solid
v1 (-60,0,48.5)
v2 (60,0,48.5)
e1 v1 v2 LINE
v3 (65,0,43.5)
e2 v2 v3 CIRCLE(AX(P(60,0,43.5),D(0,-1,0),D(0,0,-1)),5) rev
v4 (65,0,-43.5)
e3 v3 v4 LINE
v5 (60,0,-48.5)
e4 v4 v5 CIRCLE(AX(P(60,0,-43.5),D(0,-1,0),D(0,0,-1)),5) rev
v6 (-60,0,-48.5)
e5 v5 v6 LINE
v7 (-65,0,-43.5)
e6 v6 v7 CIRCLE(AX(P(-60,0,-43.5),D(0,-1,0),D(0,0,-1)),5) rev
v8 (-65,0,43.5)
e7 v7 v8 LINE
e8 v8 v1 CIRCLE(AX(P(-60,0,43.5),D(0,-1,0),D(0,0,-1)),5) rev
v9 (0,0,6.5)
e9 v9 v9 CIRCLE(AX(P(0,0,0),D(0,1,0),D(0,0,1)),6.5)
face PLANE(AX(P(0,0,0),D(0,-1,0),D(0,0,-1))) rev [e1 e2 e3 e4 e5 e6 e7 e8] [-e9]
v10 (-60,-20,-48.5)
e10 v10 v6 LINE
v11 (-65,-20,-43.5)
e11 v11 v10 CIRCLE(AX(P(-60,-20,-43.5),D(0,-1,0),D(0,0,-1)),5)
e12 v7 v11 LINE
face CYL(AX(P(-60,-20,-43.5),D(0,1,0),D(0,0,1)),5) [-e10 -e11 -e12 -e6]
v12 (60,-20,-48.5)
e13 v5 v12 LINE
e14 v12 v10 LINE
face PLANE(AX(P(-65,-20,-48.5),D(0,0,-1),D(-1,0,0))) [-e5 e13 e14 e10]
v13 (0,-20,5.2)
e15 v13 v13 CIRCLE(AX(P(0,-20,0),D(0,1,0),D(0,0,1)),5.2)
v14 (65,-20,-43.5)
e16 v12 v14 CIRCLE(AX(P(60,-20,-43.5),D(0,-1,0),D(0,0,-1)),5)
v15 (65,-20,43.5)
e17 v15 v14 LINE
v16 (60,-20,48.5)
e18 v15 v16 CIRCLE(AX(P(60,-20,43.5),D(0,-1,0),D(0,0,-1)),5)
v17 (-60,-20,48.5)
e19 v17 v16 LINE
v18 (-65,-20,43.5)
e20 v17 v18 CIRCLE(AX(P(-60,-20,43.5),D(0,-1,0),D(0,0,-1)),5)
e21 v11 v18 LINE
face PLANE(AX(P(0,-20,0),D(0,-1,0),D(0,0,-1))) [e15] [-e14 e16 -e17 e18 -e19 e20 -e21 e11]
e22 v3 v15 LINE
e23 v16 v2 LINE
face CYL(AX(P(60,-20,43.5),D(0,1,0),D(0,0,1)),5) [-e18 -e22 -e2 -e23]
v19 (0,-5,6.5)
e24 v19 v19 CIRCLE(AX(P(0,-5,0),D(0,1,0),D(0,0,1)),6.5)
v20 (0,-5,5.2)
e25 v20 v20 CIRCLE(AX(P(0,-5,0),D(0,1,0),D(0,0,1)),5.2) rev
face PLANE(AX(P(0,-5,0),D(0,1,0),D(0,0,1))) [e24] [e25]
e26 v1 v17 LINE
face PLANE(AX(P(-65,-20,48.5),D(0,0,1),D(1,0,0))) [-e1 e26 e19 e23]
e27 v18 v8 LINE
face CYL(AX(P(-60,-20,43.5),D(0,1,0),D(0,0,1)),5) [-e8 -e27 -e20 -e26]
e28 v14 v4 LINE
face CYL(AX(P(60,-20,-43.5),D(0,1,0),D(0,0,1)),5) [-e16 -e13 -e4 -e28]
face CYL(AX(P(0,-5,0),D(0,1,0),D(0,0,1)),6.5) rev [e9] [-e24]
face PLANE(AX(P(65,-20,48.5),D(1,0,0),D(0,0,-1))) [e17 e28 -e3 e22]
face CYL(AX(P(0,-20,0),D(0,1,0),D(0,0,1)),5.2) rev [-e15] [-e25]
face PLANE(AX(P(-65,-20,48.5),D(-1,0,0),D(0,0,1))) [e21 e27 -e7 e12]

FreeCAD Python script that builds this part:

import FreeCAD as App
import Part
import Sketcher
from FreeCAD import Vector


def edges_at(feature, points):
    """Names of the edges that pass closest to the given points."""
    edges = feature.Shape.Edges
    near = lambda p: min(range(len(edges)), key=lambda i: edges[i].distToShape(Part.Vertex(*p))[0])
    return sorted({f"Edge{near(p) + 1}" for p in points})

doc = App.newDocument("Part")
body = doc.addObject("PartDesign::Body", "Body")

# Sketch on XZ plane
sketch1 = body.newObject("Sketcher::SketchObject", "Sketch")
sketch1.AttachmentSupport = (doc.getObject("XZ_Plane"), [""])
sketch1.MapMode = "FlatFace"
sketch1.addGeometry(Part.LineSegment(Vector(-65, -48.5, 0), Vector(-65, 48.5, 0)), False)
sketch1.addGeometry(Part.LineSegment(Vector(-65, 48.5, 0), Vector(65, 48.5, 0)), False)
sketch1.addGeometry(Part.LineSegment(Vector(65, 48.5, 0), Vector(65, -48.5, 0)), False)
sketch1.addGeometry(Part.LineSegment(Vector(65, -48.5, 0), Vector(-65, -48.5, 0)), False)
sketch1.addConstraint(Sketcher.Constraint("Coincident", 0, 2, 1, 1))
sketch1.addConstraint(Sketcher.Constraint("Coincident", 1, 2, 2, 1))
sketch1.addConstraint(Sketcher.Constraint("Coincident", 2, 2, 3, 1))
sketch1.addConstraint(Sketcher.Constraint("Coincident", 3, 2, 0, 1))
sketch1.addConstraint(Sketcher.Constraint("Vertical", 0))
sketch1.addConstraint(Sketcher.Constraint("Horizontal", 1))
sketch1.addConstraint(Sketcher.Constraint("Vertical", 2))
sketch1.addConstraint(Sketcher.Constraint("Horizontal", 3))
sketch1.addConstraint(Sketcher.Constraint("Symmetric", 0, 2, 2, 2, -1, 1))
sketch1.addConstraint(Sketcher.Constraint("DistanceX", 1, 1, 1, 2, 130.0))
sketch1.addConstraint(Sketcher.Constraint("DistanceY", 0, 1, 0, 2, 97.0))
pad1 = body.newObject("PartDesign::Pad", "Pad")
pad1.Profile = sketch1
pad1.Length = 20

# Sketch on XZ plane
sketch2 = body.newObject("Sketcher::SketchObject", "Sketch001")
sketch2.AttachmentSupport = (doc.getObject("XZ_Plane"), [""])
sketch2.MapMode = "FlatFace"
sketch2.addGeometry(Part.Circle(Vector(0, 0, 0), Vector(0, 0, 1), 5.2), False)
sketch2.addConstraint(Sketcher.Constraint("Coincident", 0, 3, -1, 1))
sketch2.addConstraint(Sketcher.Constraint("Diameter", 0, 10.4))
pocket1 = body.newObject("PartDesign::Pocket", "Pocket")
pocket1.Profile = sketch2
pocket1.Type = "ThroughAll"
pocket1.Reversed = True

# Sketch on XZ plane
sketch3 = body.newObject("Sketcher::SketchObject", "Sketch002")
sketch3.AttachmentSupport = (doc.getObject("XZ_Plane"), [""])
sketch3.MapMode = "FlatFace"
sketch3.addGeometry(Part.Circle(Vector(0, 0, 0), Vector(0, 0, 1), 6.5), False)
sketch3.addConstraint(Sketcher.Constraint("Coincident", 0, 3, -1, 1))
sketch3.addConstraint(Sketcher.Constraint("Diameter", 0, 13.0))
pocket2 = body.newObject("PartDesign::Pocket", "Pocket001")
pocket2.Profile = sketch3
pocket2.Length = 5
pocket2.Reversed = True
doc.recompute()

fillet = body.newObject("PartDesign::Fillet", "Fillet")
fillet.Base = (pocket2, edges_at(pocket2, [
    (65, -10, 48.5),
    (-65, -10, 48.5),
    (-65, -10, -48.5),
    (65, -10, -48.5),
]))
fillet.Radius = 5

doc.recompute()
